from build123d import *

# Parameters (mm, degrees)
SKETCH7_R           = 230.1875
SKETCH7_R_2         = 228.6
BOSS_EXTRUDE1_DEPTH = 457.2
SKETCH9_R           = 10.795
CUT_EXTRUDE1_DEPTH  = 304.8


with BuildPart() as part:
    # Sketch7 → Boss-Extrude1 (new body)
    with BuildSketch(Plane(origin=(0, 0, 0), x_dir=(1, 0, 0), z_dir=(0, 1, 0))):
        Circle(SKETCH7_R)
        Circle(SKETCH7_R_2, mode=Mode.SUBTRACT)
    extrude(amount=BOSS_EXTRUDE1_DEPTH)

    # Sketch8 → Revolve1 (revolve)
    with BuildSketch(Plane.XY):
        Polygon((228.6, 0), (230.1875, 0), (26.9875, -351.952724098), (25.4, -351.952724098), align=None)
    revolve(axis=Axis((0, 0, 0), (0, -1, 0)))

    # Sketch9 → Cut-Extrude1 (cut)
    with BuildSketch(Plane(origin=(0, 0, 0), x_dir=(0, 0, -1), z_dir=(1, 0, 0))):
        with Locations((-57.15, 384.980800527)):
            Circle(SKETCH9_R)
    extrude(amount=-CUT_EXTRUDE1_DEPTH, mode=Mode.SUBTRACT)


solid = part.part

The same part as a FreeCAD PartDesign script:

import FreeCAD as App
import Part
import Sketcher

V = App.Vector
Q = App.Units.Quantity


def add_polygon(sketch, points):
    """Adds a closed chain of lines whose ends are joined by coincident constraints."""
    first, n = sketch.GeometryCount, len(points)
    for a, b in zip(points, points[1:] + points[:1]):
        sketch.addGeometry(Part.LineSegment(App.Vector(*a, 0), App.Vector(*b, 0)), False)
    for i in range(n):
        sketch.addConstraint(Sketcher.Constraint("Coincident", first + i, 2, first + (i + 1) % n, 1))

doc = App.newDocument("Part")
params = doc.addObject("Spreadsheet::Sheet", "Params")
for row, (alias, value) in enumerate([
    ("sketch1_diameter", "18 in"),
    ("sketch1_diameter2", "18.125 in"),
    ("pad1_length", "18 in"),
    ("sketch2_length", "16 in"),
    ("sketch2_width", "0.0625 in"),
    ("revolution_angle", "360 deg"),
    ("sketch3_diameter", "0.85 in"),
    ("pocket1_length", "12 in"),
], start=1):
    params.set(f"A{row}", alias)
    params.set(f"B{row}", "=" + value)
    params.setAlias(f"B{row}", alias)

body = doc.addObject("PartDesign::Body", "Body")

# Sketch on XZ plane
sketch1 = body.newObject("Sketcher::SketchObject", "Sketch")
sketch1.AttachmentSupport = (doc.getObject("XZ_Plane"), [""])
sketch1.MapMode = "FlatFace"
sketch1.addGeometry([
    Part.Circle(V(0, 0, 0), V(0, 0, 1), 230.1875),
    Part.Circle(V(0, 0, 0), V(0, 0, 1), 228.6),
], False)
sketch1.addConstraint([
    Sketcher.Constraint("Coincident", 0, 3, -1, 1),
    Sketcher.Constraint("Coincident", 1, 3, -1, 1),
    Sketcher.Constraint("Diameter", 1, Q("18 in")),
    Sketcher.Constraint("Diameter", 0, Q("18.125 in")),
])
sketch1.setExpression("Constraints[2]", "Params.sketch1_diameter")
sketch1.setExpression("Constraints[3]", "Params.sketch1_diameter2")
pad1 = body.newObject("PartDesign::Pad", "Pad")
pad1.Profile = sketch1
pad1.setExpression("Length", "Params.pad1_length")
pad1.Reversed = True

# Sketch on XY plane
sketch2 = body.newObject("Sketcher::SketchObject", "Sketch001")
sketch2.AttachmentSupport = (doc.getObject("XY_Plane"), [""])
sketch2.MapMode = "FlatFace"
add_polygon(sketch2, [(230.1875, 0), (228.6, 0), (25.4, -351.952724), (26.9875, -351.952724)])  # lines 0-3
sketch2.addConstraint([
    Sketcher.Constraint("Horizontal", 0),
    Sketcher.Constraint("Horizontal", 2),
    Sketcher.Constraint("PointOnObject", 0, 2, -1),
    Sketcher.Constraint("Parallel", 1, 3),
    Sketcher.Constraint("Distance", 1, Q("16 in")),
    Sketcher.Constraint("DistanceX", -1, 1, 0, 2, Q("9 in")),
    Sketcher.Constraint("DistanceX", -1, 1, 1, 2, Q("1 in")),
    Sketcher.Constraint("DistanceX", 0, 2, 0, 1, Q("0.0625 in")),
])
sketch2.setExpression("Constraints[8]", "Params.sketch2_length")
sketch2.setExpression("Constraints[11]", "Params.sketch2_width")
revolution = body.newObject("PartDesign::Revolution", "Revolution")
revolution.Profile = sketch2
revolution.ReferenceAxis = (sketch2, ["V_Axis"])
revolution.setExpression("Angle", "Params.revolution_angle")

# Sketch on YZ plane
sketch3 = body.newObject("Sketcher::SketchObject", "Sketch002")
sketch3.AttachmentSupport = (doc.getObject("YZ_Plane"), [""])
sketch3.MapMode = "FlatFace"
sketch3.addGeometry(Part.Circle(V(384.980801, 57.15, 0), V(0, 0, 1), 10.795), False)
sketch3.addConstraint([
    Sketcher.Constraint("Diameter", 0, Q("0.85 in")),
    Sketcher.Constraint("DistanceY", -1, 1, 0, 3, Q("2.25 in")),
    Sketcher.Constraint("DistanceX", -1, 1, 0, 3, 384.980801),
])
sketch3.setExpression("Constraints[0]", "Params.sketch3_diameter")
pocket1 = body.newObject("PartDesign::Pocket", "Pocket")
pocket1.Profile = sketch3
pocket1.setExpression("Length", "Params.pocket1_length")

doc.recompute()
